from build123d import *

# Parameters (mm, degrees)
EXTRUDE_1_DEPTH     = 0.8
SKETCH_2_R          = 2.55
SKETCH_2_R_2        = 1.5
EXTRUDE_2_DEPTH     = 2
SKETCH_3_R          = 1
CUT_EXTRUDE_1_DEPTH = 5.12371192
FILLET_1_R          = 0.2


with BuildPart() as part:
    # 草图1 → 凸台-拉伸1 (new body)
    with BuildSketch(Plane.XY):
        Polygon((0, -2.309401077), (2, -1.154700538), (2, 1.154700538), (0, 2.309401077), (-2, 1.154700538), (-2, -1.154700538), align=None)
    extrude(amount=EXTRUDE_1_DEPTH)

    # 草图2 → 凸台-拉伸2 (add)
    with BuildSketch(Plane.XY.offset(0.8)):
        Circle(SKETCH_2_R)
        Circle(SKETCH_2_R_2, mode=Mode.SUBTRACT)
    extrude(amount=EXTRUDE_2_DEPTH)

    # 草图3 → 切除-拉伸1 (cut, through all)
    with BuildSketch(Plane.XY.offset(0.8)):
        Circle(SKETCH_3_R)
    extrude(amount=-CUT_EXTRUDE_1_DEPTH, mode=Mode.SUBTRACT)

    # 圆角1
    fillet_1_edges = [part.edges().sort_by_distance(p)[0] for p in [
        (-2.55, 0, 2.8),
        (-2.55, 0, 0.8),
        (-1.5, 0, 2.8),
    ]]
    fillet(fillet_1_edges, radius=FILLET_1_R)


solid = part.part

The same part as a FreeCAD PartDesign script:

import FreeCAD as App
import Part
import Sketcher
from FreeCAD import Vector
Q = App.Units.Quantity


def edges_at(feature, points):
    """Names of the edges that pass closest to the given points."""
    edges = feature.Shape.Edges
    near = lambda p: min(range(len(edges)), key=lambda i: edges[i].distToShape(Part.Vertex(*p))[0])
    return sorted({f"Edge{near(p) + 1}" for p in points})

doc = App.newDocument("Part")
body = doc.addObject("PartDesign::Body", "Body")

sketch1 = body.newObject("Sketcher::SketchObject", "Sketch")
sketch1.AttachmentSupport = (doc.getObject("XY_Plane"), [""])
sketch1.MapMode = "FlatFace"
sketch1.addGeometry(Part.LineSegment(Vector(0, -2.3, 0), Vector(2, -1.2, 0)), False)
sketch1.addGeometry(Part.LineSegment(Vector(2, -1.2, 0), Vector(2, 1.2, 0)), False)
sketch1.addGeometry(Part.LineSegment(Vector(2, 1.2, 0), Vector(0, 2.3, 0)), False)
sketch1.addGeometry(Part.LineSegment(Vector(0, 2.3, 0), Vector(-2, 1.2, 0)), False)
sketch1.addGeometry(Part.LineSegment(Vector(-2, 1.2, 0), Vector(-2, -1.2, 0)), False)
sketch1.addGeometry(Part.LineSegment(Vector(-2, -1.2, 0), Vector(0, -2.3, 0)), False)
sketch1.addConstraint(Sketcher.Constraint("Coincident", 0, 2, 1, 1))
sketch1.addConstraint(Sketcher.Constraint("Coincident", 1, 2, 2, 1))
sketch1.addConstraint(Sketcher.Constraint("Coincident", 2, 2, 3, 1))
sketch1.addConstraint(Sketcher.Constraint("Coincident", 3, 2, 4, 1))
sketch1.addConstraint(Sketcher.Constraint("Coincident", 4, 2, 5, 1))
sketch1.addConstraint(Sketcher.Constraint("Coincident", 5, 2, 0, 1))
sketch1.addConstraint(Sketcher.Constraint("Vertical", 1))
sketch1.addConstraint(Sketcher.Constraint("Vertical", 4))
sketch1.addConstraint(Sketcher.Constraint("Symmetric", 0, 2, 3, 2, -1, 1))
sketch1.addConstraint(Sketcher.Constraint("Symmetric", 2, 2, 5, 2, -1, 1))
sketch1.addConstraint(Sketcher.Constraint("PointOnObject", 2, 2, -2))
sketch1.addConstraint(Sketcher.Constraint("Parallel", 2, 5))
sketch1.addConstraint(Sketcher.Constraint("Horizontal", 1, 2, 3, 2))
sketch1.addConstraint(Sketcher.Constraint("Angle", 0, Q("30 deg")))
sketch1.addConstraint(Sketcher.Constraint("DistanceX", -1, 1, 0, 2, Q("2 mm")))
sketch1.addConstraint(Sketcher.Constraint("DistanceY", 1, 1, 1, 2, Q("2.309401 mm")))
pad1 = body.newObject("PartDesign::Pad", "Pad")
pad1.Profile = sketch1
pad1.Length = 0.8

sketch2 = body.newObject("Sketcher::SketchObject", "Sketch001")
sketch2.AttachmentSupport = (doc.getObject("XY_Plane"), [""])
sketch2.MapMode = "FlatFace"
sketch2.AttachmentOffset = App.Placement(Vector(0, 0, 0.8), App.Rotation())
sketch2.addGeometry(Part.Circle(Vector(0, 0, 0), Vector(0, 0, 1), 2.5), False)
sketch2.addGeometry(Part.Circle(Vector(0, 0, 0), Vector(0, 0, 1), 1.5), False)
sketch2.addConstraint(Sketcher.Constraint("Coincident", 0, 3, -1, 1))
sketch2.addConstraint(Sketcher.Constraint("Coincident", 1, 3, -1, 1))
sketch2.addConstraint(Sketcher.Constraint("Diameter", 1, Q("3 mm")))
sketch2.addConstraint(Sketcher.Constraint("Diameter", 0, Q("5.1 mm")))
pad2 = body.newObject("PartDesign::Pad", "Pad001")
pad2.Profile = sketch2
pad2.Length = 2

sketch3 = body.newObject("Sketcher::SketchObject", "Sketch002")
sketch3.AttachmentSupport = (doc.getObject("XY_Plane"), [""])
sketch3.MapMode = "FlatFace"
sketch3.AttachmentOffset = App.Placement(Vector(0, 0, 0.8), App.Rotation())
sketch3.addGeometry(Part.Circle(Vector(0, 0, 0), Vector(0, 0, 1), 1), False)
sketch3.addConstraint(Sketcher.Constraint("Coincident", 0, 3, -1, 1))
sketch3.addConstraint(Sketcher.Constraint("Diameter", 0, Q("2 mm")))
pocket1 = body.newObject("PartDesign::Pocket", "Pocket")
pocket1.Profile = sketch3
pocket1.Type = "ThroughAll"
doc.recompute()

fillet = body.newObject("PartDesign::Fillet", "Fillet")
fillet.Base = (pocket1, edges_at(pocket1, [(-2.55, 0, 2.8), (-2.55, 0, 0.8), (-1.5, 0, 2.8)]))
fillet.Radius = 0.2

doc.recompute()
